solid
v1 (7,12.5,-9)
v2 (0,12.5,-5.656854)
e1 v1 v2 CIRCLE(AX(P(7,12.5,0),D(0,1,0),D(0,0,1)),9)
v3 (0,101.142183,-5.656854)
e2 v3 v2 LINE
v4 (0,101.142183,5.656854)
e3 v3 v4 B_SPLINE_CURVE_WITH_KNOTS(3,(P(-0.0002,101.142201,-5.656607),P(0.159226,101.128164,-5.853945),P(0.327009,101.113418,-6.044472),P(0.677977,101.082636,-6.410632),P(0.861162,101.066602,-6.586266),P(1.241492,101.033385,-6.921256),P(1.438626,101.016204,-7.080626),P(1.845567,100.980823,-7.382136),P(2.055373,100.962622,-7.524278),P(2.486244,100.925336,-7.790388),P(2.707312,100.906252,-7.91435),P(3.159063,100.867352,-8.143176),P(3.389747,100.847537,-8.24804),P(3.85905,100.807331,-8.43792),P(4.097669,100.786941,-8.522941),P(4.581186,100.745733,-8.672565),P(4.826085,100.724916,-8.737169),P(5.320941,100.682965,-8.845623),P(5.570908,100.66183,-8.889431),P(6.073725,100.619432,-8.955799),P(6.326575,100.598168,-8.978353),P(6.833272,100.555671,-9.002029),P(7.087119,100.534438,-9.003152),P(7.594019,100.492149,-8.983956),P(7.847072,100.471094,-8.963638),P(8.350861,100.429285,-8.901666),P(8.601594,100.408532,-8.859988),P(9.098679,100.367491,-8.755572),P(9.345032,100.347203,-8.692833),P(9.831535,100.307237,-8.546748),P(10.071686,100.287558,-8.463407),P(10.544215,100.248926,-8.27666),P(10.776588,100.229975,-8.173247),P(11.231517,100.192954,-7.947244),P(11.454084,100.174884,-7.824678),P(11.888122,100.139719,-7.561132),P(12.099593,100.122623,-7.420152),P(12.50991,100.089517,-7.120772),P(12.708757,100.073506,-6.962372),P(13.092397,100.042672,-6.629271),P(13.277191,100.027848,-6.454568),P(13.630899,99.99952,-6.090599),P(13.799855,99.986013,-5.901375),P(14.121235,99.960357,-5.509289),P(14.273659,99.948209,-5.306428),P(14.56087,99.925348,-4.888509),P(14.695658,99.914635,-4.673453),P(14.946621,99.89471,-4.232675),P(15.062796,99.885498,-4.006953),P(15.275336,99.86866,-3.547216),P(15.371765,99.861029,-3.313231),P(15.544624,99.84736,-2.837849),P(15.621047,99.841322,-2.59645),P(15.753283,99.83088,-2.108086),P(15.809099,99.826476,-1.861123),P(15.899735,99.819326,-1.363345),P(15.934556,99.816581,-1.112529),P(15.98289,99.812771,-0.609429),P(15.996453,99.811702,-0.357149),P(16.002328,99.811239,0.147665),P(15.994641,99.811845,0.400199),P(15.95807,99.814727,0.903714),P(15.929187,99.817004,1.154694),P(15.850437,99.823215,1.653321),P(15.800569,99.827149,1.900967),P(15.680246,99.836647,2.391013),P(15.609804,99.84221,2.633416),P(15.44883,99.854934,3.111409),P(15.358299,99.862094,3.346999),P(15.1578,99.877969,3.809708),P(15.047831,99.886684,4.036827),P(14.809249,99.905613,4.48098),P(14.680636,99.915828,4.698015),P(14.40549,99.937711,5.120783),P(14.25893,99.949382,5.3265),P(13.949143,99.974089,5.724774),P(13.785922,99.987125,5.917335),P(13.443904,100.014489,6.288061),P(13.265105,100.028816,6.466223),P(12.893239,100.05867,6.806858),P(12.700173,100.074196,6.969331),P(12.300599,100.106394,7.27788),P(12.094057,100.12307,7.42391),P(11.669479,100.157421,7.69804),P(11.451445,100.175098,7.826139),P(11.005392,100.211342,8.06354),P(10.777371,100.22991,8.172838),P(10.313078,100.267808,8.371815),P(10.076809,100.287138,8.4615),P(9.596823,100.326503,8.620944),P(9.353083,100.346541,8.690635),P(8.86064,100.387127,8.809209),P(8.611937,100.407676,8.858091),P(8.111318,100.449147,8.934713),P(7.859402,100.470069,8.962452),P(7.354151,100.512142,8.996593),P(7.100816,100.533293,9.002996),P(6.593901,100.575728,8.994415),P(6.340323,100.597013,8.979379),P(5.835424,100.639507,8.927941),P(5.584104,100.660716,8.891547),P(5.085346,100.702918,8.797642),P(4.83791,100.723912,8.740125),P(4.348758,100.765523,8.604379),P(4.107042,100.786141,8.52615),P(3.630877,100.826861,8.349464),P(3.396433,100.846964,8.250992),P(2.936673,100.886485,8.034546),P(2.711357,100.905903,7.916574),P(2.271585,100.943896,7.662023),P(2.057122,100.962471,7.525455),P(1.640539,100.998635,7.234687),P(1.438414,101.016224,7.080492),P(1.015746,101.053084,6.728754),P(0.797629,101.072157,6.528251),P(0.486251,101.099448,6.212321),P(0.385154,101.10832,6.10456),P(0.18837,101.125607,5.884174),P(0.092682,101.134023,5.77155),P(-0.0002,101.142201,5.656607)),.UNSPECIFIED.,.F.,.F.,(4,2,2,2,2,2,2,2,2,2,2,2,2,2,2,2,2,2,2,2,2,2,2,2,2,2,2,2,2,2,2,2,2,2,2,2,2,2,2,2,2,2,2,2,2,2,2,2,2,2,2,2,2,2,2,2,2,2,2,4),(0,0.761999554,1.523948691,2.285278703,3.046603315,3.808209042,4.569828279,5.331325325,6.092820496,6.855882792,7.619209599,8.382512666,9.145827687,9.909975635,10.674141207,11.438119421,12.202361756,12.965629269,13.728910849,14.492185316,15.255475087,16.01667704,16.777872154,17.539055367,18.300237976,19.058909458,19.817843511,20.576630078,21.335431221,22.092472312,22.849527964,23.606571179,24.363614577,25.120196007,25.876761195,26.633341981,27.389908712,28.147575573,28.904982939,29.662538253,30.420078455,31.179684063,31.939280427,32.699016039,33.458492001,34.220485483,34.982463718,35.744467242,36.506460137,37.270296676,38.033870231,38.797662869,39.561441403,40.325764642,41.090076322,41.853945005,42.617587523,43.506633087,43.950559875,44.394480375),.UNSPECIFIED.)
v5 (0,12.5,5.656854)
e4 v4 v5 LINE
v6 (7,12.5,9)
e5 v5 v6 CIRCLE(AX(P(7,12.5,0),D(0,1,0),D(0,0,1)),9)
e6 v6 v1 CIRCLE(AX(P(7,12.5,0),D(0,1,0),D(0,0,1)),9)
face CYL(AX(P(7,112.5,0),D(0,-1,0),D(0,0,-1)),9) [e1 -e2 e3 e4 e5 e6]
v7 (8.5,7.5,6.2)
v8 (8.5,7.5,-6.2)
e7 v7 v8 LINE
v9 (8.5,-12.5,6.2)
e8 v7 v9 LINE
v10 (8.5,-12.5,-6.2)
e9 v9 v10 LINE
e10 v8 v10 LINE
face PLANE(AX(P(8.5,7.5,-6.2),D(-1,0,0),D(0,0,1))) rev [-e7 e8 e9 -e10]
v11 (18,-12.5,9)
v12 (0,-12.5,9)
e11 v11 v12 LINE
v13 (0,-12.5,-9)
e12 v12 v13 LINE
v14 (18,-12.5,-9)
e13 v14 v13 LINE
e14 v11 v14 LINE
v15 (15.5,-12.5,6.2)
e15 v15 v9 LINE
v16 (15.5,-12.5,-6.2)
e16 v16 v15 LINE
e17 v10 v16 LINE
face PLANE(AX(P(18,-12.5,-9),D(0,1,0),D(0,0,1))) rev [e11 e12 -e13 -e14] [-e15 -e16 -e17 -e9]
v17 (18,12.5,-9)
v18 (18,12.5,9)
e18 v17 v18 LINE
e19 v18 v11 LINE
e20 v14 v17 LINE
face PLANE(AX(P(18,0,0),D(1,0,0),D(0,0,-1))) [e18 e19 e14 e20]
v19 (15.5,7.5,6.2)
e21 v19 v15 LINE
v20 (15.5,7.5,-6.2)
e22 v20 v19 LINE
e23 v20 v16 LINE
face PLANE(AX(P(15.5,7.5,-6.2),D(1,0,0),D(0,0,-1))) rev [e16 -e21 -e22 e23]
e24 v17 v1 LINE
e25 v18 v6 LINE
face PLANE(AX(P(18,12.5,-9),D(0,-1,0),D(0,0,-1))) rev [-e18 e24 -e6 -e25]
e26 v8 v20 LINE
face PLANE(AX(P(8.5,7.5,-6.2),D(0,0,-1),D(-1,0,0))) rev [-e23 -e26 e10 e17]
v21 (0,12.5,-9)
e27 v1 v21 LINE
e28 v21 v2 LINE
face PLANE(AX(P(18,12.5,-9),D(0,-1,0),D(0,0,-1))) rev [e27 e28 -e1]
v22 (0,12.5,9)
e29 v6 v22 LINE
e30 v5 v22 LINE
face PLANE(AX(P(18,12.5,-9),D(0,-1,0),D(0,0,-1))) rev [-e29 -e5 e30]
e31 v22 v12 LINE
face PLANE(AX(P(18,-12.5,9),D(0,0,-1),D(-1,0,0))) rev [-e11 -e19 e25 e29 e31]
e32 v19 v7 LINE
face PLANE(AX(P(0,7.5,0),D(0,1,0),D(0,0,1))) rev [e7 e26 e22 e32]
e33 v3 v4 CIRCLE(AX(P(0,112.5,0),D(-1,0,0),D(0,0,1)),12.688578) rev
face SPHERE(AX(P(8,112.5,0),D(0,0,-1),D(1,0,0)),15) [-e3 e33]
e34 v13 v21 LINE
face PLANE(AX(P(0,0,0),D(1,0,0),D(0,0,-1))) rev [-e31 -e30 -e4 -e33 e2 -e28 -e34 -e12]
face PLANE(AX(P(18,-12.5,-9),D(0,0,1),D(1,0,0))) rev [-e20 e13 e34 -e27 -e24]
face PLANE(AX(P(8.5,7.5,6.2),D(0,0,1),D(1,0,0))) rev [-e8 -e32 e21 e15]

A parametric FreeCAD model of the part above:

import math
import FreeCAD as App
import Part
import Sketcher
from FreeCAD import Vector
Q = App.Units.Quantity


def add_polygon(sketch, points):
    """Adds a closed chain of lines whose ends are joined by coincident constraints."""
    first, n = sketch.GeometryCount, len(points)
    for a, b in zip(points, points[1:] + points[:1]):
        sketch.addGeometry(Part.LineSegment(App.Vector(*a, 0), App.Vector(*b, 0)), False)
    for i in range(n):
        sketch.addConstraint(Sketcher.Constraint("Coincident", first + i, 2, first + (i + 1) % n, 1))

doc = App.newDocument("Part")
body = doc.addObject("PartDesign::Body", "Body")

# Sketch on YZ plane
sketch1 = body.newObject("Sketcher::SketchObject", "Sketch")
sketch1.AttachmentSupport = (doc.getObject("YZ_Plane"), [""])
sketch1.MapMode = "FlatFace"
add_polygon(sketch1, [(12, 9), (-12, 9), (-12, -9), (12, -9)])  # lines 0-3
sketch1.addConstraint([
    Sketcher.Constraint("Horizontal", 0),
    Sketcher.Constraint("Vertical", 1),
    Sketcher.Constraint("Horizontal", 2),
    Sketcher.Constraint("Vertical", 3),
    Sketcher.Constraint("Symmetric", 0, 2, 2, 2, -1, 1),
    Sketcher.Constraint("DistanceX", 0, 2, 0, 1, Q("25 mm")),
    Sketcher.Constraint("DistanceY", 1, 2, 1, 1, Q("18 mm")),
])
pad1 = body.newObject("PartDesign::Pad", "Pad")
pad1.Profile = sketch1
pad1.Length = 18

# Sketch on XZ plane
sketch2 = body.newObject("Sketcher::SketchObject", "Sketch001")
sketch2.AttachmentSupport = (doc.getObject("XZ_Plane"), [""])
sketch2.MapMode = "FlatFace"
sketch2.AttachmentOffset = App.Placement(Vector(0, 0, 12.5), App.Rotation())
add_polygon(sketch2, [(8, 6), (8, -6), (16, -6), (16, 6)])  # lines 0-3
sketch2.addConstraint([
    Sketcher.Constraint("Vertical", 0),
    Sketcher.Constraint("Horizontal", 1),
    Sketcher.Constraint("Vertical", 2),
    Sketcher.Constraint("Horizontal", 3),
    Sketcher.Constraint("DistanceX", 1, 1, 1, 2, Q("7 mm")),
    Sketcher.Constraint("DistanceY", 0, 2, 0, 1, Q("12.4 mm")),
    Sketcher.Constraint("DistanceX", -1, 1, 0, 2, Q("8.5 mm")),
    Sketcher.Constraint("DistanceY", 0, 2, -1, 1, Q("6.2 mm")),
])
pocket1 = body.newObject("PartDesign::Pocket", "Pocket")
pocket1.Profile = sketch2
pocket1.Length = 20

# Sketch on XZ plane
sketch3 = body.newObject("Sketcher::SketchObject", "Sketch002")
sketch3.AttachmentSupport = (doc.getObject("XZ_Plane"), [""])
sketch3.MapMode = "FlatFace"
sketch3.AttachmentOffset = App.Placement(Vector(0, 0, -12.5), App.Rotation())
sketch3.addGeometry([
    Part.LineSegment(Vector(0, -6, 0), Vector(0, 6, 0)),
    Part.ArcOfCircle(Part.Circle(Vector(7, 0, 0), Vector(0, 0, 1), 9), math.radians(-141), math.radians(141)),
], False)
sketch3.addConstraint([
    Sketcher.Constraint("Coincident", 0, 1, 1, 1),
    Sketcher.Constraint("Coincident", 1, 2, 0, 2),
    Sketcher.Constraint("Vertical", 0),
    Sketcher.Constraint("Symmetric", 0, 1, 1, 2, -1, 1),
    Sketcher.Constraint("Radius", 1, Q("9 mm")),
    Sketcher.Constraint("DistanceX", -1, 1, 1, 3, Q("7 mm")),
])
pad2 = body.newObject("PartDesign::Pad", "Pad001")
pad2.Profile = sketch3
pad2.Length = 100
pad2.Reversed = True

# Sketch on XZ plane
sketch4 = body.newObject("Sketcher::SketchObject", "Sketch003")
sketch4.AttachmentSupport = (doc.getObject("XZ_Plane"), [""])
sketch4.MapMode = "FlatFace"
sketch4.AttachmentOffset = App.Placement(Vector(0, 0, -112.5), App.Rotation())
sketch4.addGeometry([
    Part.LineSegment(Vector(8, 15, 0), Vector(8, -15, 0)),
    Part.ArcOfCircle(Part.Circle(Vector(8, 0, 0), Vector(0, 0, 1), 15), math.radians(90), math.radians(270)),
], False)
sketch4.addGeometry(Part.LineSegment(Vector(8, -15, 0), Vector(8, 15, 0)), True)  # axis
sketch4.addConstraint([
    Sketcher.Constraint("Coincident", 0, 1, 1, 1),
    Sketcher.Constraint("Coincident", 1, 2, 0, 2),
    Sketcher.Constraint("Vertical", 0),
    Sketcher.Constraint("Vertical", 2),
    Sketcher.Constraint("Coincident", 2, 1, 1, 2),
    Sketcher.Constraint("PointOnObject", 1, 3, -1),
    Sketcher.Constraint("Vertical", 1, 3, 0, 1),
    Sketcher.Constraint("Equal", 0, 2),
    Sketcher.Constraint("Radius", 1, Q("15 mm")),
    Sketcher.Constraint("DistanceX", -1, 1, 1, 3, Q("8 mm")),
])
revolution = body.newObject("PartDesign::Revolution", "Revolution")
revolution.Profile = sketch4
revolution.ReferenceAxis = (sketch4, ["Axis0"])
revolution.Angle = 360

# Sketch on YZ plane
sketch5 = body.newObject("Sketcher::SketchObject", "Sketch004")
sketch5.AttachmentSupport = (doc.getObject("YZ_Plane"), [""])
sketch5.MapMode = "FlatFace"
sketch5.addGeometry([
    Part.ArcOfCircle(Part.Circle(Vector(152, 0, 0), Vector(0, 0, 1), 51), math.radians(-174), math.radians(174)),
    Part.ArcOfCircle(Part.Circle(Vector(113, 0, 0), Vector(0, 0, 1), 13), math.radians(154), math.radians(206)),
], False)
sketch5.addConstraint([
    Sketcher.Constraint("Coincident", 0, 1, 1, 2),
    Sketcher.Constraint("Coincident", 1, 1, 0, 2),
    Sketcher.Constraint("Symmetric", 0, 1, 1, 1, -1),
    Sketcher.Constraint("DistanceX", -1, 1, 1, 3, Q("112.5 mm")),
    Sketcher.Constraint("Radius", 0, Q("51.44918 mm")),
    Sketcher.Constraint("Radius", 1, Q("12.688578 mm")),
    Sketcher.Constraint("DistanceX", -1, 1, 0, 3, Q("152.279431 mm")),
])
pocket2 = body.newObject("PartDesign::Pocket", "Pocket001")
pocket2.Profile = sketch5
pocket2.Length = 100

doc.recompute()
